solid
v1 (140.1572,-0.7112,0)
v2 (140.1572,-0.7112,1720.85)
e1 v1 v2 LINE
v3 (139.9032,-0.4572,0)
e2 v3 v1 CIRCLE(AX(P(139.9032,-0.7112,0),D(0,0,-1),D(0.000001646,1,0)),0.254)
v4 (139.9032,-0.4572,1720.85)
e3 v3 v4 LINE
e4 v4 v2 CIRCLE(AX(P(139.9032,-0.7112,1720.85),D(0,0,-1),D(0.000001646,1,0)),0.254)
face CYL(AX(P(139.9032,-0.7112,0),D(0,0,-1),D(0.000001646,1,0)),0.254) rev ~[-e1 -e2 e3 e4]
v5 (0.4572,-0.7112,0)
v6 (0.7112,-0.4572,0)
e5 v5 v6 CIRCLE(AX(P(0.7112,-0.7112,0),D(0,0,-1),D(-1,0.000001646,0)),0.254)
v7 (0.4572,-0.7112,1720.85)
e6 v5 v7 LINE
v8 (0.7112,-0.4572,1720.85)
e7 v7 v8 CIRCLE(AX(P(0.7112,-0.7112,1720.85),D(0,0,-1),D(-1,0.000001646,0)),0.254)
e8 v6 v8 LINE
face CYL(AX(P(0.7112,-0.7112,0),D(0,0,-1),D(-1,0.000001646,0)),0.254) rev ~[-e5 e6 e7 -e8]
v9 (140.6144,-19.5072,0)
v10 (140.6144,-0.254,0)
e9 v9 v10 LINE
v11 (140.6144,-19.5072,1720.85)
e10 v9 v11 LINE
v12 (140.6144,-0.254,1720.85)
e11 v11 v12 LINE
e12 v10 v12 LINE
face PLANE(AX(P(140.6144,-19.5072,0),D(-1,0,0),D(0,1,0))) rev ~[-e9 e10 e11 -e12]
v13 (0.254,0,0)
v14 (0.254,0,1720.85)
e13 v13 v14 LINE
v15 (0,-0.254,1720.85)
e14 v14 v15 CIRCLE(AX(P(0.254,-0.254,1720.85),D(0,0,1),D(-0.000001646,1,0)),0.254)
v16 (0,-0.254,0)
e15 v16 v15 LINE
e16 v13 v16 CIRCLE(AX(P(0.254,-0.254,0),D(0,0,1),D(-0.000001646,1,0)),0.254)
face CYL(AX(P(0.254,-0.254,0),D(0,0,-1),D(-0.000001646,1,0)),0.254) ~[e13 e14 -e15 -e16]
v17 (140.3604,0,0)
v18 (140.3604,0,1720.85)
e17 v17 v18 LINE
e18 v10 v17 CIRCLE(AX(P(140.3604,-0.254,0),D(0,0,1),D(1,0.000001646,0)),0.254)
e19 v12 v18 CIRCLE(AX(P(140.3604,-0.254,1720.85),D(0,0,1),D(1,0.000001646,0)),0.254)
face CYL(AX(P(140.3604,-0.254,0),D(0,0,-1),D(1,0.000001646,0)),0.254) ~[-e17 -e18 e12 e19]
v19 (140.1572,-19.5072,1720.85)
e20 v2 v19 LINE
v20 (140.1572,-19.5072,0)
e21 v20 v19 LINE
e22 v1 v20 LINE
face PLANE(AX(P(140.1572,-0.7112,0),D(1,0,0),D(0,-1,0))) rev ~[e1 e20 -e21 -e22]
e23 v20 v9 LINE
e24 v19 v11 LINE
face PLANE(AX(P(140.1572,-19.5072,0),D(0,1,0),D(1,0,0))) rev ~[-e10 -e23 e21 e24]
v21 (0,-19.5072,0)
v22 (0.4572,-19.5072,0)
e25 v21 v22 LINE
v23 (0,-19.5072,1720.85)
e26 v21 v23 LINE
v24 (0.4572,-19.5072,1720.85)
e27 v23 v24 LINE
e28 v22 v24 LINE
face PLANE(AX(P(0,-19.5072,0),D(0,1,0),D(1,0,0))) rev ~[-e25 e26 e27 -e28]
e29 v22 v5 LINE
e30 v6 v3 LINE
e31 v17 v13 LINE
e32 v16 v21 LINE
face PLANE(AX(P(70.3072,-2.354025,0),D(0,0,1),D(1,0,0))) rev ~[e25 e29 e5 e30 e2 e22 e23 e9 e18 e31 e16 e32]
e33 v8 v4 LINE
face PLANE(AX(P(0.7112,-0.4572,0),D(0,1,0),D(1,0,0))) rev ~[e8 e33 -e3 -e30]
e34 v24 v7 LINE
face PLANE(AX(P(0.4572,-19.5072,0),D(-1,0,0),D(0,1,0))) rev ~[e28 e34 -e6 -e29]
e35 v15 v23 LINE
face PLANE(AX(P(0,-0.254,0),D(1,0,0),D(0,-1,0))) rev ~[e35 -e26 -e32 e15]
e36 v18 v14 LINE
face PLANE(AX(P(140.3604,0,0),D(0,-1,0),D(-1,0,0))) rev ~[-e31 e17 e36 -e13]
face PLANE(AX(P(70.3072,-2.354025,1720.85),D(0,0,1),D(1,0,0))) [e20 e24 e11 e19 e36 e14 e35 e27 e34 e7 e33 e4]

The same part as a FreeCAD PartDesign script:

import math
import FreeCAD as App
import Part
import Sketcher
Q = App.Units.Quantity

doc = App.newDocument("Part")
body = doc.addObject("PartDesign::Body", "Body")

# Sketch on XY plane
sketch1 = doc.addObject("Sketcher::SketchObject", "Sketch")
body.addObject(sketch1)
sketch1.AttachmentSupport = (doc.XY_Plane, [""])
sketch1.MapMode = "FlatFace"
sketch1.addGeometry([
    Part.LineSegment(App.Vector(140.36, 0, 0), App.Vector(0.25, 0, 0)),  # 0
    Part.ArcOfCircle(Part.Circle(App.Vector(0.25, -0.25, 0), App.Vector(0, 0, 1), 0.25), math.radians(90), math.radians(180)),  # 1
    Part.LineSegment(App.Vector(0, -0.25, 0), App.Vector(0, -19.51, 0)),  # 2
    Part.LineSegment(App.Vector(0, -19.51, 0), App.Vector(0.46, -19.51, 0)),  # 3
    Part.LineSegment(App.Vector(0.46, -19.51, 0), App.Vector(0.46, -0.71, 0)),  # 4
    Part.ArcOfCircle(Part.Circle(App.Vector(0.71, -0.71, 0), App.Vector(0, 0, 1), 0.25), math.radians(90), math.radians(180)),  # 5
    Part.LineSegment(App.Vector(0.71, -0.46, 0), App.Vector(139.9, -0.46, 0)),  # 6
    Part.ArcOfCircle(Part.Circle(App.Vector(139.9, -0.71, 0), App.Vector(0, 0, 1), 0.25), math.radians(0), math.radians(90)),  # 7
    Part.LineSegment(App.Vector(140.16, -0.71, 0), App.Vector(140.16, -19.51, 0)),  # 8
    Part.LineSegment(App.Vector(140.16, -19.51, 0), App.Vector(140.61, -19.51, 0)),  # 9
    Part.LineSegment(App.Vector(140.61, -19.51, 0), App.Vector(140.61, -0.25, 0)),  # 10
    Part.ArcOfCircle(Part.Circle(App.Vector(140.36, -0.25, 0), App.Vector(0, 0, 1), 0.25), math.radians(0), math.radians(90)),  # 11
], False)
sketch1.addConstraint([
    Sketcher.Constraint("Tangent", 0, 2, 1, 1),
    Sketcher.Constraint("Tangent", 1, 2, 2, 1),
    Sketcher.Constraint("Coincident", 2, 2, 3, 1),
    Sketcher.Constraint("Coincident", 3, 2, 4, 1),
    Sketcher.Constraint("Tangent", 4, 2, 5, 2),
    Sketcher.Constraint("Tangent", 5, 1, 6, 1),
    Sketcher.Constraint("Tangent", 6, 2, 7, 2),
    Sketcher.Constraint("Tangent", 7, 1, 8, 1),
    Sketcher.Constraint("Coincident", 8, 2, 9, 1),
    Sketcher.Constraint("Coincident", 9, 2, 10, 1),
    Sketcher.Constraint("Tangent", 10, 2, 11, 1),
    Sketcher.Constraint("Tangent", 11, 2, 0, 1),
    Sketcher.Constraint("Horizontal", 0),
    Sketcher.Constraint("Vertical", 2),
    Sketcher.Constraint("Horizontal", 3),
    Sketcher.Constraint("Vertical", 4),
    Sketcher.Constraint("Horizontal", 6),
    Sketcher.Constraint("Vertical", 8),
    Sketcher.Constraint("Horizontal", 9),
    Sketcher.Constraint("Vertical", 10),
    Sketcher.Constraint("Equal", 1, 5),
    Sketcher.Constraint("Equal", 5, 7),
    Sketcher.Constraint("Equal", 7, 11),
    Sketcher.Constraint("PointOnObject", 0, 2, -1),
    Sketcher.Constraint("PointOnObject", 1, 2, -2),
    Sketcher.Constraint("Horizontal", 3, 2, 8, 2),
    Sketcher.Constraint("Equal", 3, 9),
    Sketcher.Constraint("Radius", 1, Q("0.01 in")),
    Sketcher.Constraint("DistanceX", 6, 1, 6, 2, Q("5.48 in")),
    Sketcher.Constraint("DistanceY", 4, 1, 4, 2, Q("0.74 in")),
    Sketcher.Constraint("DistanceX", 0, 2, 0, 1, Q("5.516 in")),
    Sketcher.Constraint("DistanceY", 2, 2, 2, 1, Q("0.758 in")),
])
pad1 = doc.addObject("PartDesign::Pad", "Pad")
body.addObject(pad1)
pad1.Profile = sketch1
pad1.Length = Q("67.75 in")

doc.recompute()
